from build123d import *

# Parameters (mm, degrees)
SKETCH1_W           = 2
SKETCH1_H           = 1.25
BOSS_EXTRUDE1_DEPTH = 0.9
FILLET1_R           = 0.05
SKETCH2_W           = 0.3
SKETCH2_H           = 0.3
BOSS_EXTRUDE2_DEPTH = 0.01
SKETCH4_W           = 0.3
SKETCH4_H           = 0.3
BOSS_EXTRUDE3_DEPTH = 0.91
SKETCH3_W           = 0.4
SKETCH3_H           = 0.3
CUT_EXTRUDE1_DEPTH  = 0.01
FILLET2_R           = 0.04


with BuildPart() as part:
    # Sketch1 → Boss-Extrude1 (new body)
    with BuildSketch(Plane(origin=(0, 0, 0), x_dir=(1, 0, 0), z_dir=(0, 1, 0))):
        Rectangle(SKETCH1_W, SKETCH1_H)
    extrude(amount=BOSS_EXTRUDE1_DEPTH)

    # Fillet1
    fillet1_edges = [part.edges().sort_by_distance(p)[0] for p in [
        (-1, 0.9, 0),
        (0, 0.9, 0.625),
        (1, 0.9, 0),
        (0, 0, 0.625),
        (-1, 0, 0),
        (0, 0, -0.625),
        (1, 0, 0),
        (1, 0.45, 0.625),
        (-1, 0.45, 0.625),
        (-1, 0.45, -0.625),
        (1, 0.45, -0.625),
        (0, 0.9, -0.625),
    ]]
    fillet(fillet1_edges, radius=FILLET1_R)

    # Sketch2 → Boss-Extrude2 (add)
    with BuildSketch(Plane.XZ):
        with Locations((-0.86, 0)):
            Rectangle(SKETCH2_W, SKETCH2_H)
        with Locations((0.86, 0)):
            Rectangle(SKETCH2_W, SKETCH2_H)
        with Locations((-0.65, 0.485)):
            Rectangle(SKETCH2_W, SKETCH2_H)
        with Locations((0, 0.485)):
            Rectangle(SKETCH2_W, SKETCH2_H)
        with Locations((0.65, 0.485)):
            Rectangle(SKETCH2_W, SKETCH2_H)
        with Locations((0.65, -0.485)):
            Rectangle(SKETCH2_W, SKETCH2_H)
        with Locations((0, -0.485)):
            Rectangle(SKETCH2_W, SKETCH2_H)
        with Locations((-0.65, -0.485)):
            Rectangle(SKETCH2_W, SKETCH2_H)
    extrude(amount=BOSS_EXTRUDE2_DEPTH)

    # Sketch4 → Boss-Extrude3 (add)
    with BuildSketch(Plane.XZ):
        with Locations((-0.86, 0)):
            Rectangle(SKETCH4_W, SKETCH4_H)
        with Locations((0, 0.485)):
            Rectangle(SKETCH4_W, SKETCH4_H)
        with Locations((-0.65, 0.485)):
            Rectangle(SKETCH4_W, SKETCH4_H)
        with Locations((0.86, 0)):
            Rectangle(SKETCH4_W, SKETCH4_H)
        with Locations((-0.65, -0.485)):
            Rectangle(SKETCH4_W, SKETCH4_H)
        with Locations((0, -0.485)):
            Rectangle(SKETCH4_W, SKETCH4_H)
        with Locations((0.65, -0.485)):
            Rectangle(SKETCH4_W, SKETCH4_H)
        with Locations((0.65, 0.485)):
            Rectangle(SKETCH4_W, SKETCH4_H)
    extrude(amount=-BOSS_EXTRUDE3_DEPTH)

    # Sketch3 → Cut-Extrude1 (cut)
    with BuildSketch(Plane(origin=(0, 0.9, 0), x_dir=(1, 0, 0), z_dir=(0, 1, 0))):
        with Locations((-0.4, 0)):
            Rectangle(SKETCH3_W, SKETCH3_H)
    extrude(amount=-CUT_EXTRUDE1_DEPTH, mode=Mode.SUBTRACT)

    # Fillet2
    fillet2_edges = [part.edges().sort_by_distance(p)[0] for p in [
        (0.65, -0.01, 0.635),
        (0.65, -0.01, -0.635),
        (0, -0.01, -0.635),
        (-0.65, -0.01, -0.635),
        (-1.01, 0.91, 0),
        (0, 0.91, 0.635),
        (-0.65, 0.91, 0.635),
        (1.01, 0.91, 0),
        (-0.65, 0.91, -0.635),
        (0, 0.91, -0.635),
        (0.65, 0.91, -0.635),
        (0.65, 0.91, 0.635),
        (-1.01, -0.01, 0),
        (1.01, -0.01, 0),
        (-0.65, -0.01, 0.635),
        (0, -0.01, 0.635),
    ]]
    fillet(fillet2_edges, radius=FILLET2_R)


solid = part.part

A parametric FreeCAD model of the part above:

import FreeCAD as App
import Part
import Sketcher

V = App.Vector


def edges_at(feature, points):
    """Names of the edges that pass closest to the given points."""
    edges = feature.Shape.Edges
    near = lambda p: min(range(len(edges)), key=lambda i: edges[i].distToShape(Part.Vertex(*p))[0])
    return sorted({f"Edge{near(p) + 1}" for p in points})


def add_polygon(sketch, points):
    """Adds a closed chain of lines whose ends are joined by coincident constraints."""
    first, n = sketch.GeometryCount, len(points)
    for a, b in zip(points, points[1:] + points[:1]):
        sketch.addGeometry(Part.LineSegment(App.Vector(*a, 0), App.Vector(*b, 0)), False)
    for i in range(n):
        sketch.addConstraint(Sketcher.Constraint("Coincident", first + i, 2, first + (i + 1) % n, 1))

doc = App.newDocument("Part")
body = doc.addObject("PartDesign::Body", "Body")

# Sketch on XZ plane
sketch1 = body.newObject("Sketcher::SketchObject", "Sketch")
sketch1.AttachmentSupport = (doc.getObject("XZ_Plane"), [""])
sketch1.MapMode = "FlatFace"
add_polygon(sketch1, [(-1, -0.625), (-1, 0.625), (1, 0.625), (1, -0.625)])  # lines 0-3
sketch1.addConstraint([
    Sketcher.Constraint("Vertical", 0),
    Sketcher.Constraint("Horizontal", 1),
    Sketcher.Constraint("Vertical", 2),
    Sketcher.Constraint("Horizontal", 3),
    Sketcher.Constraint("Symmetric", 0, 2, 2, 2, -1, 1),
    Sketcher.Constraint("DistanceX", 1, 1, 1, 2, 2.0),
    Sketcher.Constraint("DistanceY", 0, 1, 0, 2, 1.25),
])
pad1 = body.newObject("PartDesign::Pad", "Pad")
pad1.Profile = sketch1
pad1.Length = 0.9
pad1.Reversed = True
doc.recompute()

fillet = body.newObject("PartDesign::Fillet", "Fillet")
fillet.Base = (pad1, ["Edge1"])
fillet.UseAllEdges = True
fillet.Radius = 0.05

# Sketch on XZ plane
sketch2 = body.newObject("Sketcher::SketchObject", "Sketch001")
sketch2.AttachmentSupport = (doc.getObject("XZ_Plane"), [""])
sketch2.MapMode = "FlatFace"
add_polygon(sketch2, [(-1.01, 0.15), (-1.01, -0.15), (-0.71, -0.15), (-0.71, 0.15)])  # lines 0-3
add_polygon(sketch2, [(0.71, 0.15), (0.71, -0.15), (1.01, -0.15), (1.01, 0.15)])  # lines 4-7
add_polygon(sketch2, [(-0.8, 0.635), (-0.8, 0.335), (-0.5, 0.335), (-0.5, 0.635)])  # lines 8-11
add_polygon(sketch2, [(-0.15, 0.635), (-0.15, 0.335), (0.15, 0.335), (0.15, 0.635)])  # lines 12-15
add_polygon(sketch2, [(0.5, 0.635), (0.5, 0.335), (0.8, 0.335), (0.8, 0.635)])  # lines 16-19
add_polygon(sketch2, [(0.5, -0.335), (0.5, -0.635), (0.8, -0.635), (0.8, -0.335)])  # lines 20-23
add_polygon(sketch2, [(-0.15, -0.335), (-0.15, -0.635), (0.15, -0.635), (0.15, -0.335)])  # lines 24-27
add_polygon(sketch2, [(-0.8, -0.335), (-0.8, -0.635), (-0.5, -0.635), (-0.5, -0.335)])  # lines 28-31
sketch2.addConstraint([
    Sketcher.Constraint("Vertical", 0),
    Sketcher.Constraint("Horizontal", 1),
    Sketcher.Constraint("Vertical", 2),
    Sketcher.Constraint("Horizontal", 3),
    Sketcher.Constraint("Vertical", 4),
    Sketcher.Constraint("Horizontal", 5),
    Sketcher.Constraint("Vertical", 6),
    Sketcher.Constraint("Horizontal", 7),
    Sketcher.Constraint("Vertical", 8),
    Sketcher.Constraint("Horizontal", 9),
    Sketcher.Constraint("Vertical", 10),
    Sketcher.Constraint("Horizontal", 11),
    Sketcher.Constraint("Vertical", 12),
    Sketcher.Constraint("Horizontal", 13),
    Sketcher.Constraint("Vertical", 14),
    Sketcher.Constraint("Horizontal", 15),
    Sketcher.Constraint("Vertical", 16),
    Sketcher.Constraint("Horizontal", 17),
    Sketcher.Constraint("Vertical", 18),
    Sketcher.Constraint("Horizontal", 19),
    Sketcher.Constraint("Vertical", 20),
    Sketcher.Constraint("Horizontal", 21),
    Sketcher.Constraint("Vertical", 22),
    Sketcher.Constraint("Horizontal", 23),
    Sketcher.Constraint("Vertical", 24),
    Sketcher.Constraint("Horizontal", 25),
    Sketcher.Constraint("Vertical", 26),
    Sketcher.Constraint("Horizontal", 27),
    Sketcher.Constraint("Vertical", 28),
    Sketcher.Constraint("Horizontal", 29),
    Sketcher.Constraint("Vertical", 30),
    Sketcher.Constraint("Horizontal", 31),
    Sketcher.Constraint("Symmetric", 2, 2, 4, 2, -1, 1),
    Sketcher.Constraint("Symmetric", 0, 2, 6, 2, -1, 1),
    Sketcher.Constraint("Symmetric", 10, 2, 20, 2, -1, 1),
    Sketcher.Constraint("Symmetric", 8, 2, 22, 2, -1, 1),
    Sketcher.Constraint("Symmetric", 14, 2, 24, 2, -1, 1),
    Sketcher.Constraint("Symmetric", 12, 2, 26, 2, -1, 1),
    Sketcher.Constraint("Symmetric", 18, 2, 28, 2, -1, 1),
    Sketcher.Constraint("Symmetric", 16, 2, 30, 2, -1, 1),
    Sketcher.Constraint("Symmetric", 9, 2, 16, 2, -2),
    Sketcher.Constraint("Symmetric", 11, 2, 18, 2, -2),
    Sketcher.Constraint("Horizontal", 1, 2, 4, 2),
    Sketcher.Constraint("Horizontal", 9, 2, 12, 2),
    Sketcher.Constraint("Horizontal", 11, 2, 14, 2),
    Sketcher.Constraint("Vertical", 15, 2, 24, 2),
    Sketcher.Constraint("Equal", 7, 9),
    Sketcher.Constraint("Equal", 11, 13),
    Sketcher.Constraint("Equal", 31, 0),
    Sketcher.Constraint("Equal", 6, 8),
    Sketcher.Constraint("DistanceX", 1, 1, 1, 2, 0.3),
    Sketcher.Constraint("DistanceX", 8, 2, -1, 1, 0.8),
    Sketcher.Constraint("DistanceX", 0, 2, -1, 1, 1.01),
    Sketcher.Constraint("DistanceY", 20, 2, 16, 2, 0.97),
])
pad2 = body.newObject("PartDesign::Pad", "Pad001")
pad2.Profile = sketch2
pad2.Length = 0.01

# Sketch on XZ plane
sketch3 = body.newObject("Sketcher::SketchObject", "Sketch002")
sketch3.AttachmentSupport = (doc.getObject("XZ_Plane"), [""])
sketch3.MapMode = "FlatFace"
add_polygon(sketch3, [(-1.01, 0.15), (-1.01, -0.15), (-0.71, -0.15), (-0.71, 0.15)])  # lines 0-3
add_polygon(sketch3, [(-0.15, 0.635), (-0.15, 0.335), (0.15, 0.335), (0.15, 0.635)])  # lines 4-7
add_polygon(sketch3, [(-0.8, 0.635), (-0.8, 0.335), (-0.5, 0.335), (-0.5, 0.635)])  # lines 8-11
add_polygon(sketch3, [(0.71, 0.15), (0.71, -0.15), (1.01, -0.15), (1.01, 0.15)])  # lines 12-15
add_polygon(sketch3, [(-0.8, -0.335), (-0.8, -0.635), (-0.5, -0.635), (-0.5, -0.335)])  # lines 16-19
add_polygon(sketch3, [(-0.15, -0.335), (-0.15, -0.635), (0.15, -0.635), (0.15, -0.335)])  # lines 20-23
add_polygon(sketch3, [(0.5, -0.335), (0.5, -0.635), (0.8, -0.635), (0.8, -0.335)])  # lines 24-27
add_polygon(sketch3, [(0.5, 0.635), (0.5, 0.335), (0.8, 0.335), (0.8, 0.635)])  # lines 28-31
sketch3.addConstraint([
    Sketcher.Constraint("Vertical", 0),
    Sketcher.Constraint("Horizontal", 1),
    Sketcher.Constraint("Vertical", 2),
    Sketcher.Constraint("Horizontal", 3),
    Sketcher.Constraint("Vertical", 4),
    Sketcher.Constraint("Horizontal", 5),
    Sketcher.Constraint("Vertical", 6),
    Sketcher.Constraint("Horizontal", 7),
    Sketcher.Constraint("Vertical", 8),
    Sketcher.Constraint("Horizontal", 9),
    Sketcher.Constraint("Vertical", 10),
    Sketcher.Constraint("Horizontal", 11),
    Sketcher.Constraint("Vertical", 12),
    Sketcher.Constraint("Horizontal", 13),
    Sketcher.Constraint("Vertical", 14),
    Sketcher.Constraint("Horizontal", 15),
    Sketcher.Constraint("Vertical", 16),
    Sketcher.Constraint("Horizontal", 17),
    Sketcher.Constraint("Vertical", 18),
    Sketcher.Constraint("Horizontal", 19),
    Sketcher.Constraint("Vertical", 20),
    Sketcher.Constraint("Horizontal", 21),
    Sketcher.Constraint("Vertical", 22),
    Sketcher.Constraint("Horizontal", 23),
    Sketcher.Constraint("Vertical", 24),
    Sketcher.Constraint("Horizontal", 25),
    Sketcher.Constraint("Vertical", 26),
    Sketcher.Constraint("Horizontal", 27),
    Sketcher.Constraint("Vertical", 28),
    Sketcher.Constraint("Horizontal", 29),
    Sketcher.Constraint("Vertical", 30),
    Sketcher.Constraint("Horizontal", 31),
    Sketcher.Constraint("Symmetric", 2, 2, 12, 2, -1, 1),
    Sketcher.Constraint("Symmetric", 0, 2, 14, 2, -1, 1),
    Sketcher.Constraint("Symmetric", 6, 2, 20, 2, -1, 1),
    Sketcher.Constraint("Symmetric", 4, 2, 22, 2, -1, 1),
    Sketcher.Constraint("Symmetric", 10, 2, 24, 2, -1, 1),
    Sketcher.Constraint("Symmetric", 8, 2, 26, 2, -1, 1),
    Sketcher.Constraint("Symmetric", 18, 2, 28, 2, -1, 1),
    Sketcher.Constraint("Symmetric", 16, 2, 30, 2, -1, 1),
    Sketcher.Constraint("Symmetric", 17, 2, 24, 2, -2),
    Sketcher.Constraint("Symmetric", 19, 2, 26, 2, -2),
    Sketcher.Constraint("Horizontal", 5, 2, 8, 2),
    Sketcher.Constraint("Horizontal", 7, 2, 10, 2),
    Sketcher.Constraint("Horizontal", 1, 2, 12, 2),
    Sketcher.Constraint("Vertical", 7, 2, 20, 2),
    Sketcher.Constraint("Equal", 3, 5),
    Sketcher.Constraint("Equal", 7, 9),
    Sketcher.Constraint("Equal", 31, 0),
    Sketcher.Constraint("Equal", 2, 4),
    Sketcher.Constraint("DistanceX", 1, 1, 1, 2, 0.3),
    Sketcher.Constraint("DistanceX", 8, 2, -1, 1, 0.8),
    Sketcher.Constraint("DistanceX", 0, 2, -1, 1, 1.01),
    Sketcher.Constraint("DistanceY", 16, 2, 8, 2, 0.97),
])
pad3 = body.newObject("PartDesign::Pad", "Pad002")
pad3.Profile = sketch3
pad3.Length = 0.91
pad3.Reversed = True

# Sketch on XZ plane
sketch4 = body.newObject("Sketcher::SketchObject", "Sketch003")
sketch4.AttachmentSupport = (doc.getObject("XZ_Plane"), [""])
sketch4.MapMode = "FlatFace"
sketch4.AttachmentOffset = App.Placement(V(0, 0, -0.9), App.Rotation())
add_polygon(sketch4, [(-0.6, -0.15), (-0.6, 0.15), (-0.2, 0.15), (-0.2, -0.15)])  # lines 0-3
sketch4.addConstraint([
    Sketcher.Constraint("Vertical", 0),
    Sketcher.Constraint("Horizontal", 1),
    Sketcher.Constraint("Vertical", 2),
    Sketcher.Constraint("Horizontal", 3),
    Sketcher.Constraint("DistanceX", 1, 1, 1, 2, 0.4),
    Sketcher.Constraint("DistanceY", 0, 1, 0, 2, 0.3),
    Sketcher.Constraint("DistanceX", 0, 2, -1, 1, 0.6),
    Sketcher.Constraint("DistanceY", -1, 1, 0, 2, 0.15),
])
pocket1 = body.newObject("PartDesign::Pocket", "Pocket")
pocket1.Profile = sketch4
pocket1.Length = 0.01
pocket1.Reversed = True
doc.recompute()

fillet2 = body.newObject("PartDesign::Fillet", "Fillet001")
fillet2.Base = (pocket1, edges_at(pocket1, [
    (0.65, -0.01, 0.635),
    (0.65, -0.01, -0.635),
    (0, -0.01, -0.635),
    (-0.65, -0.01, -0.635),
    (-1.01, 0.91, 0),
    (0, 0.91, 0.635),
    (-0.65, 0.91, 0.635),
    (1.01, 0.91, 0),
    (-0.65, 0.91, -0.635),
    (0, 0.91, -0.635),
    (0.65, 0.91, -0.635),
    (0.65, 0.91, 0.635),
    (-1.01, -0.01, 0),
    (1.01, -0.01, 0),
    (-0.65, -0.01, 0.635),
    (0, -0.01, 0.635),
]))
fillet2.Radius = 0.04

doc.recompute()
